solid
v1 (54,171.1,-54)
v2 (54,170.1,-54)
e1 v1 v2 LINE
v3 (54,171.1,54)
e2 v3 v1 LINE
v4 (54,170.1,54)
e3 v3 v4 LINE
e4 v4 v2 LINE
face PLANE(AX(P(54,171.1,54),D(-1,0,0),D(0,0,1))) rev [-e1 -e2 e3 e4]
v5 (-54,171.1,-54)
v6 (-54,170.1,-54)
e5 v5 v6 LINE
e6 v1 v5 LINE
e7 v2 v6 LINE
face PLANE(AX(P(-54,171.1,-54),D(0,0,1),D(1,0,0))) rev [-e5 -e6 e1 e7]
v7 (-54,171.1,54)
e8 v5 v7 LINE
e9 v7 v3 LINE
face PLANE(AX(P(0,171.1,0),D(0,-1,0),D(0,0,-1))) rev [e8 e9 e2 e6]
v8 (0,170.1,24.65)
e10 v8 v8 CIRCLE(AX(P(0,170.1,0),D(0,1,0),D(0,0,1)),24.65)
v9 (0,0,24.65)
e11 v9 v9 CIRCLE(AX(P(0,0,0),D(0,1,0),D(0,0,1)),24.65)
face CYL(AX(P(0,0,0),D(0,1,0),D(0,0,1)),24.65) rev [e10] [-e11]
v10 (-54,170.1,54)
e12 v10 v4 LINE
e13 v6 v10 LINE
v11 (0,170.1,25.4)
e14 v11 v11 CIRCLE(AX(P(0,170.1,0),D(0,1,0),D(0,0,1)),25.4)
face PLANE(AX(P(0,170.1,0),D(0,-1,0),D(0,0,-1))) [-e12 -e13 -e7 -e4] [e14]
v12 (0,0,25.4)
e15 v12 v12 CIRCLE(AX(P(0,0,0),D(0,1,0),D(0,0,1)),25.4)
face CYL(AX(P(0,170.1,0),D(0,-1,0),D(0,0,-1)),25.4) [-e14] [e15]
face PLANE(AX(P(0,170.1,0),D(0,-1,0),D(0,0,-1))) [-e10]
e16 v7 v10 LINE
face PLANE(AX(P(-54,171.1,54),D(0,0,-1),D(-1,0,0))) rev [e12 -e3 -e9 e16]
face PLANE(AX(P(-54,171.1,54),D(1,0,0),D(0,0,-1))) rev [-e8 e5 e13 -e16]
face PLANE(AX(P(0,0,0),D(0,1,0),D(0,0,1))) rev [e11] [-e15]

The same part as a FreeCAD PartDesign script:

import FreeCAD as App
import Part
import Sketcher


def add_polygon(sketch, points):
    """Adds a closed chain of lines whose ends are joined by coincident constraints."""
    first, n = sketch.GeometryCount, len(points)
    for a, b in zip(points, points[1:] + points[:1]):
        sketch.addGeometry(Part.LineSegment(App.Vector(*a, 0), App.Vector(*b, 0)), False)
    for i in range(n):
        sketch.addConstraint(Sketcher.Constraint("Coincident", first + i, 2, first + (i + 1) % n, 1))

doc = App.newDocument("Part")
body = doc.addObject("PartDesign::Body", "Body")

sketch1 = body.newObject("Sketcher::SketchObject", "Sketch")
sketch1.AttachmentSupport = (doc.getObject("XZ_Plane"), [""])
sketch1.MapMode = "FlatFace"
sketch1.addGeometry(Part.Circle(App.Vector(0, 0, 0), App.Vector(0, 0, 1), 25.4), False)
sketch1.addConstraint([
    Sketcher.Constraint("Coincident", 0, 3, -1, 1),
    Sketcher.Constraint("Diameter", 0, 50.8),
])
pad1 = body.newObject("PartDesign::Pad", "Pad")
pad1.Profile = sketch1
pad1.Length = 170.1
pad1.Reversed = True

sketch2 = body.newObject("Sketcher::SketchObject", "Sketch001")
sketch2.AttachmentSupport = (doc.getObject("XZ_Plane"), [""])
sketch2.MapMode = "FlatFace"
sketch2.AttachmentOffset = App.Placement(App.Vector(0, 0, -170.1), App.Rotation())
sketch2.addGeometry(Part.Circle(App.Vector(0, 0, 0), App.Vector(0, 0, 1), 24.65), False)
sketch2.addConstraint([
    Sketcher.Constraint("Coincident", 0, 3, -1, 1),
    Sketcher.Constraint("Diameter", 0, 49.3),
])
pocket1 = body.newObject("PartDesign::Pocket", "Pocket")
pocket1.Profile = sketch2
pocket1.Type = "ThroughAll"
pocket1.Reversed = True

sketch3 = body.newObject("Sketcher::SketchObject", "Sketch002")
sketch3.AttachmentSupport = (doc.getObject("XZ_Plane"), [""])
sketch3.MapMode = "FlatFace"
sketch3.AttachmentOffset = App.Placement(App.Vector(0, 0, -170.1), App.Rotation())
add_polygon(sketch3, [(-54, -54), (-54, 54), (54, 54), (54, -54)])
sketch3.addConstraint([
    Sketcher.Constraint("Vertical", 0),
    Sketcher.Constraint("Horizontal", 1),
    Sketcher.Constraint("Vertical", 2),
    Sketcher.Constraint("Horizontal", 3),
    Sketcher.Constraint("Symmetric", 0, 2, 2, 2, -1, 1),
    Sketcher.Constraint("Equal", 3, 0),
    Sketcher.Constraint("DistanceX", 1, 1, 1, 2, 108.0),
])
pad2 = body.newObject("PartDesign::Pad", "Pad001")
pad2.Profile = sketch3
pad2.Length = 1
pad2.Reversed = True

doc.recompute()
